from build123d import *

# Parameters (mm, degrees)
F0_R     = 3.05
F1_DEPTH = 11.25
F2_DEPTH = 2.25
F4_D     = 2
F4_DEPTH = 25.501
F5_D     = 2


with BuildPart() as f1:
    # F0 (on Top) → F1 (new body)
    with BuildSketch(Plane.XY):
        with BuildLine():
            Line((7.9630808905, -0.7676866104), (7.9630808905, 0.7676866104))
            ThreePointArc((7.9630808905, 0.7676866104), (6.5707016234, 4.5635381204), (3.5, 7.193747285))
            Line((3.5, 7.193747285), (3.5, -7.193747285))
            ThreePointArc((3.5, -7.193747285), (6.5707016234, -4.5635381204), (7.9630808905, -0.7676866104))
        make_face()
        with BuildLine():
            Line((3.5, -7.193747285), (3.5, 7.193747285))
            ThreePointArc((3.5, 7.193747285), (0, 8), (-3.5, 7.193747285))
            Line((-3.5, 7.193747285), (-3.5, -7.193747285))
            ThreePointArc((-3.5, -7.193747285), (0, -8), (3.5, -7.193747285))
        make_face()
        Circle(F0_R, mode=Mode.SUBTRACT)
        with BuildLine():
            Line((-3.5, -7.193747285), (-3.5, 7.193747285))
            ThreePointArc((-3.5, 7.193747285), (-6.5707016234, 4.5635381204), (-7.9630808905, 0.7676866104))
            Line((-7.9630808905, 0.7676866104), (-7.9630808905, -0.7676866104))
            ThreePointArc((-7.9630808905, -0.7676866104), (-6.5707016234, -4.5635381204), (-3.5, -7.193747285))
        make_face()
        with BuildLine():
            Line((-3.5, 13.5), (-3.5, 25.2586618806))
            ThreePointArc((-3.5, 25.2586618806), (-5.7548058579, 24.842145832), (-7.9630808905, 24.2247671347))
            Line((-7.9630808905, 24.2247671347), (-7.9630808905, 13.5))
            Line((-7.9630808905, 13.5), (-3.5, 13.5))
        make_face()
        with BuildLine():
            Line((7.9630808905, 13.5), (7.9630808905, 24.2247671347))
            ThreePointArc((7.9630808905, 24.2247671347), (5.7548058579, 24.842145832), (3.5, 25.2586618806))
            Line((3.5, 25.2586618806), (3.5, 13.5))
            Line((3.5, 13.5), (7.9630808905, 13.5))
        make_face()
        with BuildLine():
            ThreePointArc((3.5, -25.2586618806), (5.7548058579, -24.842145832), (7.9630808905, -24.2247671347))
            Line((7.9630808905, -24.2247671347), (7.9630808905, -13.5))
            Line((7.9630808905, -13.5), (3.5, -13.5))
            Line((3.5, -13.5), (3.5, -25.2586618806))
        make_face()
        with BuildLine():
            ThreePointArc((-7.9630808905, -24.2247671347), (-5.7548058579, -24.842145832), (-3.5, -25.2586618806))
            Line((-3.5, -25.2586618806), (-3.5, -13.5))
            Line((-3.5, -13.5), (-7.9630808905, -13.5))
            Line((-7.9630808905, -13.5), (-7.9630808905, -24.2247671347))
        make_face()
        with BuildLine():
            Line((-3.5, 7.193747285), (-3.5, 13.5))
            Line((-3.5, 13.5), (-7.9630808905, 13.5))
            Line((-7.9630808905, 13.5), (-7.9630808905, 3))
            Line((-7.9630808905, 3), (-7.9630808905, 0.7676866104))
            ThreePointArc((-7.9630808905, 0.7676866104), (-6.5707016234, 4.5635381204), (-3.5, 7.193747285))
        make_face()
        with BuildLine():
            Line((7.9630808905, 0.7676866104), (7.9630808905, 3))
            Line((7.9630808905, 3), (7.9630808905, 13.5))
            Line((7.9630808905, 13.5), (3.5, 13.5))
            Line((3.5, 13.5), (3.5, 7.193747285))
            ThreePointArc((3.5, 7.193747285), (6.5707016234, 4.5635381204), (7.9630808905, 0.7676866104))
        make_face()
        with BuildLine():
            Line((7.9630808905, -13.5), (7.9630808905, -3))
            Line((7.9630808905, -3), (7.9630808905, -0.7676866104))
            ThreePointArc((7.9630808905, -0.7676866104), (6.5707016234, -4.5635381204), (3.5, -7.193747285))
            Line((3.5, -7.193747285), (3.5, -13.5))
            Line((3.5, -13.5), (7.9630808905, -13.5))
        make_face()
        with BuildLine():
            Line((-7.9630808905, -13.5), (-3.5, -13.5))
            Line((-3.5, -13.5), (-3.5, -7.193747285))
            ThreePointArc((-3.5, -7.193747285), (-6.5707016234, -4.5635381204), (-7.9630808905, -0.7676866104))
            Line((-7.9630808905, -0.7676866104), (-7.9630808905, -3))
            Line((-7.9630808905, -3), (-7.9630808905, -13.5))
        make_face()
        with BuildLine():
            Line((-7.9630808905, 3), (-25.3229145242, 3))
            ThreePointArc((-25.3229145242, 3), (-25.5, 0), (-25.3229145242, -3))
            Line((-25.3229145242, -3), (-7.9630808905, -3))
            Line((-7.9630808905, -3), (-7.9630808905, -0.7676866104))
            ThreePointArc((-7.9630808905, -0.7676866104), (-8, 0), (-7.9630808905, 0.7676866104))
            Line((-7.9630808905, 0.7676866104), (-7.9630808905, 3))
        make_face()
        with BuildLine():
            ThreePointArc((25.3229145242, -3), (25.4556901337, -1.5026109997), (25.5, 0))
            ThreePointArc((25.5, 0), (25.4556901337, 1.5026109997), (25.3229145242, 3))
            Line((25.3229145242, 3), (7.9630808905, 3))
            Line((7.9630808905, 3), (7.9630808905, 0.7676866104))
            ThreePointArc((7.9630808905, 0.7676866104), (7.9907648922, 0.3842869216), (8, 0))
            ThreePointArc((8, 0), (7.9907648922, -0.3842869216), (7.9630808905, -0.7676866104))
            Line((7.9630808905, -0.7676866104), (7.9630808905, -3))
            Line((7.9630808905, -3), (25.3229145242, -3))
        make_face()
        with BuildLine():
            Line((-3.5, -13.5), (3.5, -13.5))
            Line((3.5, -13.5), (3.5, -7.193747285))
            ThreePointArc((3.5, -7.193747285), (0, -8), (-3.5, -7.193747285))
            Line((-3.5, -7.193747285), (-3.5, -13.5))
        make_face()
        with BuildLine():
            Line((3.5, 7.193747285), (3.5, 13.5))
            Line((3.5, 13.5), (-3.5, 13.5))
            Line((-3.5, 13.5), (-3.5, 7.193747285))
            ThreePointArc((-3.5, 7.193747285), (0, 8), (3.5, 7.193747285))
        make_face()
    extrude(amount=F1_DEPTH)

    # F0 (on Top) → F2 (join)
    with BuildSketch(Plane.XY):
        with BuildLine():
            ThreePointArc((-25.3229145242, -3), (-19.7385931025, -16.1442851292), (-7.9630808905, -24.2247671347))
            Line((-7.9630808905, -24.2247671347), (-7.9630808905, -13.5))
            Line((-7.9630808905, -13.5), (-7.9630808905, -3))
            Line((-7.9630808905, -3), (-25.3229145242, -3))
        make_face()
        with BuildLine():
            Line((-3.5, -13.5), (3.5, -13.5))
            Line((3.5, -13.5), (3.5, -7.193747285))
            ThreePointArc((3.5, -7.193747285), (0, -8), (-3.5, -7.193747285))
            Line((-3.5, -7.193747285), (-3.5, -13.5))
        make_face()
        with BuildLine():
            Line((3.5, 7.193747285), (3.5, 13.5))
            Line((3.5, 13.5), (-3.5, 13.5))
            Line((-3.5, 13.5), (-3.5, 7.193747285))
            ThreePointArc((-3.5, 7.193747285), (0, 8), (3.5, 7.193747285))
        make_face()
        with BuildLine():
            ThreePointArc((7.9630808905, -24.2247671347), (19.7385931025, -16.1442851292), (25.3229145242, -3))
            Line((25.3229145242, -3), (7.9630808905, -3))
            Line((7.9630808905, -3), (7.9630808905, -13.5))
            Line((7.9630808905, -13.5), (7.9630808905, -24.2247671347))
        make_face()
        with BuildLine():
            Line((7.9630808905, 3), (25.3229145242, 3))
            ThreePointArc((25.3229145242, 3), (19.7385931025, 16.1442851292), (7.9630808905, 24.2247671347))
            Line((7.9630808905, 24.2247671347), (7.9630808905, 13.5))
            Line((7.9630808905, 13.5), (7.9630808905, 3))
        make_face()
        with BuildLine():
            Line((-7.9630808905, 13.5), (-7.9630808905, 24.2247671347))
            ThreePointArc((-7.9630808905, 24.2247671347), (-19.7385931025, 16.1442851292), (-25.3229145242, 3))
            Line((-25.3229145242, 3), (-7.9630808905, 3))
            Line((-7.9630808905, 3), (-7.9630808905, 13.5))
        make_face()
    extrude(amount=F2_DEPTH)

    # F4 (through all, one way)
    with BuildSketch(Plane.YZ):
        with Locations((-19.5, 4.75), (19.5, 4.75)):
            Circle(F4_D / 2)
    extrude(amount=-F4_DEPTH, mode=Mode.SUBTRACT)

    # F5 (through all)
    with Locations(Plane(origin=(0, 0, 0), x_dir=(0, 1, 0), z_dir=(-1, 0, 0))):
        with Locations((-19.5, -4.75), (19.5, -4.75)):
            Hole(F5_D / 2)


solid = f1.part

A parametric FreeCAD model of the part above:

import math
import FreeCAD as App
import Part
import Sketcher
from FreeCAD import Vector

doc = App.newDocument("Part")
body = doc.addObject("PartDesign::Body", "Body")

# Sketch on XY plane
sketch1 = body.newObject("Sketcher::SketchObject", "Sketch")
sketch1.AttachmentSupport = (doc.getObject("XY_Plane"), [""])
sketch1.MapMode = "FlatFace"
sketch1.addGeometry(Part.ArcOfCircle(Part.Circle(Vector(0, 0, 0), Vector(0, 0, 1), 25.5), math.radians(71.8), math.radians(82.11)), False)
sketch1.addGeometry(Part.LineSegment(Vector(3.5, 25.3, 0), Vector(3.5, 13.5, 0)), False)
sketch1.addGeometry(Part.LineSegment(Vector(3.5, 13.5, 0), Vector(-3.5, 13.5, 0)), False)
sketch1.addGeometry(Part.LineSegment(Vector(-3.5, 13.5, 0), Vector(-3.5, 25.3, 0)), False)
sketch1.addGeometry(Part.ArcOfCircle(Part.Circle(Vector(0, 0, 0), Vector(0, 0, 1), 25.5), math.radians(97.89), math.radians(108.2)), False)
sketch1.addGeometry(Part.LineSegment(Vector(-8, 24.2, 0), Vector(-8, 3, 0)), False)
sketch1.addGeometry(Part.LineSegment(Vector(-8, 3, 0), Vector(-25.3, 3, 0)), False)
sketch1.addGeometry(Part.ArcOfCircle(Part.Circle(Vector(0, 0, 0), Vector(0, 0, 1), 25.5), math.radians(173.24), math.radians(186.76)), False)
sketch1.addGeometry(Part.LineSegment(Vector(-25.3, -3, 0), Vector(-8, -3, 0)), False)
sketch1.addGeometry(Part.LineSegment(Vector(-8, -3, 0), Vector(-8, -24.2, 0)), False)
sketch1.addGeometry(Part.ArcOfCircle(Part.Circle(Vector(0, 0, 0), Vector(0, 0, 1), 25.5), math.radians(-108.2), math.radians(-97.89)), False)
sketch1.addGeometry(Part.LineSegment(Vector(-3.5, -25.3, 0), Vector(-3.5, -13.5, 0)), False)
sketch1.addGeometry(Part.LineSegment(Vector(-3.5, -13.5, 0), Vector(3.5, -13.5, 0)), False)
sketch1.addGeometry(Part.LineSegment(Vector(3.5, -13.5, 0), Vector(3.5, -25.3, 0)), False)
sketch1.addGeometry(Part.ArcOfCircle(Part.Circle(Vector(0, 0, 0), Vector(0, 0, 1), 25.5), math.radians(-82.11), math.radians(-71.8)), False)
sketch1.addGeometry(Part.LineSegment(Vector(8, -24.2, 0), Vector(8, -3, 0)), False)
sketch1.addGeometry(Part.LineSegment(Vector(8, -3, 0), Vector(25.3, -3, 0)), False)
sketch1.addGeometry(Part.ArcOfCircle(Part.Circle(Vector(0, 0, 0), Vector(0, 0, 1), 25.5), math.radians(-6.76), math.radians(0)), False)
sketch1.addGeometry(Part.ArcOfCircle(Part.Circle(Vector(0, 0, 0), Vector(0, 0, 1), 25.5), math.radians(0), math.radians(6.76)), False)
sketch1.addGeometry(Part.LineSegment(Vector(25.3, 3, 0), Vector(8, 3, 0)), False)
sketch1.addGeometry(Part.LineSegment(Vector(8, 3, 0), Vector(8, 24.2, 0)), False)
sketch1.addGeometry(Part.LineSegment(Vector(8, -0.8, 0), Vector(8, 0.8, 0)), False)
sketch1.addGeometry(Part.ArcOfCircle(Part.Circle(Vector(0, 0, 0), Vector(0, 0, 1), 8), math.radians(0), math.radians(5.51)), False)
sketch1.addGeometry(Part.ArcOfCircle(Part.Circle(Vector(0, 0, 0), Vector(0, 0, 1), 8), math.radians(-5.51), math.radians(0)), False)
sketch1.addGeometry(Part.LineSegment(Vector(-8, 0.8, 0), Vector(-8, -0.8, 0)), False)
sketch1.addGeometry(Part.ArcOfCircle(Part.Circle(Vector(0, 0, 0), Vector(0, 0, 1), 8), math.radians(174.49), math.radians(185.51)), False)
sketch1.addGeometry(Part.Circle(Vector(0, 0, 0), Vector(0, 0, 1), 3), False)
sketch1.addConstraint(Sketcher.Constraint("Coincident", 0, 2, 1, 1))
sketch1.addConstraint(Sketcher.Constraint("Coincident", 1, 2, 2, 1))
sketch1.addConstraint(Sketcher.Constraint("Coincident", 2, 2, 3, 1))
sketch1.addConstraint(Sketcher.Constraint("Coincident", 3, 2, 4, 1))
sketch1.addConstraint(Sketcher.Constraint("Coincident", 4, 2, 5, 1))
sketch1.addConstraint(Sketcher.Constraint("Coincident", 5, 2, 6, 1))
sketch1.addConstraint(Sketcher.Constraint("Coincident", 6, 2, 7, 1))
sketch1.addConstraint(Sketcher.Constraint("Coincident", 7, 2, 8, 1))
sketch1.addConstraint(Sketcher.Constraint("Coincident", 8, 2, 9, 1))
sketch1.addConstraint(Sketcher.Constraint("Coincident", 9, 2, 10, 1))
sketch1.addConstraint(Sketcher.Constraint("Coincident", 10, 2, 11, 1))
sketch1.addConstraint(Sketcher.Constraint("Coincident", 11, 2, 12, 1))
sketch1.addConstraint(Sketcher.Constraint("Coincident", 12, 2, 13, 1))
sketch1.addConstraint(Sketcher.Constraint("Coincident", 13, 2, 14, 1))
sketch1.addConstraint(Sketcher.Constraint("Coincident", 14, 2, 15, 1))
sketch1.addConstraint(Sketcher.Constraint("Coincident", 15, 2, 16, 1))
sketch1.addConstraint(Sketcher.Constraint("Coincident", 16, 2, 17, 1))
sketch1.addConstraint(Sketcher.Constraint("Tangent", 17, 2, 18, 1))
sketch1.addConstraint(Sketcher.Constraint("Coincident", 18, 2, 19, 1))
sketch1.addConstraint(Sketcher.Constraint("Coincident", 19, 2, 20, 1))
sketch1.addConstraint(Sketcher.Constraint("Coincident", 20, 2, 0, 1))
sketch1.addConstraint(Sketcher.Constraint("Coincident", 21, 2, 22, 2))
sketch1.addConstraint(Sketcher.Constraint("Tangent", 22, 1, 23, 2))
sketch1.addConstraint(Sketcher.Constraint("Coincident", 23, 1, 21, 1))
sketch1.addConstraint(Sketcher.Constraint("Coincident", 24, 1, 25, 1))
sketch1.addConstraint(Sketcher.Constraint("Coincident", 25, 2, 24, 2))
sketch1.addConstraint(Sketcher.Constraint("Vertical", 1))
sketch1.addConstraint(Sketcher.Constraint("Horizontal", 2))
sketch1.addConstraint(Sketcher.Constraint("Vertical", 3))
sketch1.addConstraint(Sketcher.Constraint("Vertical", 5))
sketch1.addConstraint(Sketcher.Constraint("Horizontal", 6))
sketch1.addConstraint(Sketcher.Constraint("Horizontal", 8))
sketch1.addConstraint(Sketcher.Constraint("Vertical", 9))
sketch1.addConstraint(Sketcher.Constraint("Vertical", 11))
sketch1.addConstraint(Sketcher.Constraint("Horizontal", 12))
sketch1.addConstraint(Sketcher.Constraint("Vertical", 13))
sketch1.addConstraint(Sketcher.Constraint("Vertical", 15))
sketch1.addConstraint(Sketcher.Constraint("Horizontal", 16))
sketch1.addConstraint(Sketcher.Constraint("Horizontal", 19))
sketch1.addConstraint(Sketcher.Constraint("Vertical", 20))
sketch1.addConstraint(Sketcher.Constraint("Vertical", 21))
sketch1.addConstraint(Sketcher.Constraint("Vertical", 24))
sketch1.addConstraint(Sketcher.Constraint("Coincident", 0, 3, -1, 1))
sketch1.addConstraint(Sketcher.Constraint("Coincident", 4, 3, -1, 1))
sketch1.addConstraint(Sketcher.Constraint("Coincident", 7, 3, -1, 1))
sketch1.addConstraint(Sketcher.Constraint("Coincident", 10, 3, -1, 1))
sketch1.addConstraint(Sketcher.Constraint("Coincident", 14, 3, -1, 1))
sketch1.addConstraint(Sketcher.Constraint("Coincident", 17, 3, -1, 1))
sketch1.addConstraint(Sketcher.Constraint("Coincident", 22, 3, -1, 1))
sketch1.addConstraint(Sketcher.Constraint("Coincident", 25, 3, -1, 1))
sketch1.addConstraint(Sketcher.Constraint("Coincident", 26, 3, -1, 1))
sketch1.addConstraint(Sketcher.Constraint("Equal", 0, 4))
sketch1.addConstraint(Sketcher.Constraint("Equal", 4, 7))
sketch1.addConstraint(Sketcher.Constraint("Equal", 7, 10))
sketch1.addConstraint(Sketcher.Constraint("Equal", 10, 14))
sketch1.addConstraint(Sketcher.Constraint("Equal", 14, 17))
sketch1.addConstraint(Sketcher.Constraint("Equal", 17, 18))
sketch1.addConstraint(Sketcher.Constraint("Equal", 22, 23))
sketch1.addConstraint(Sketcher.Constraint("Equal", 23, 25))
sketch1.addConstraint(Sketcher.Constraint("Symmetric", 1, 2, 11, 2, -1, 1))
sketch1.addConstraint(Sketcher.Constraint("Symmetric", 5, 2, 15, 2, -1, 1))
sketch1.addConstraint(Sketcher.Constraint("Symmetric", 8, 2, 19, 2, -1, 1))
sketch1.addConstraint(Sketcher.Constraint("Symmetric", 8, 2, 15, 2, -2))
sketch1.addConstraint(Sketcher.Constraint("PointOnObject", 17, 2, -1))
sketch1.addConstraint(Sketcher.Constraint("PointOnObject", 22, 1, -1))
sketch1.addConstraint(Sketcher.Constraint("Horizontal", 0, 2, 3, 2))
sketch1.addConstraint(Sketcher.Constraint("Horizontal", 10, 2, 13, 2))
sketch1.addConstraint(Sketcher.Constraint("Horizontal", 21, 2, 24, 1))
sketch1.addConstraint(Sketcher.Constraint("Vertical", 20, 2, 21, 2))
sketch1.addConstraint(Sketcher.Constraint("Radius", 22, 8.0))
sketch1.addConstraint(Sketcher.Constraint("Diameter", 26, 6.1))
sketch1.addConstraint(Sketcher.Constraint("Radius", 0, 25.5))
sketch1.addConstraint(Sketcher.Constraint("DistanceX", 2, 2, 2, 1, 7.0))
sketch1.addConstraint(Sketcher.Constraint("DistanceY", -1, 1, 5, 2, 3.0))
sketch1.addConstraint(Sketcher.Constraint("DistanceY", -1, 1, 1, 2, 13.5))
sketch1.addConstraint(Sketcher.Constraint("DistanceX", 6, 2, 6, 1, 17.359834))
pad1 = body.newObject("PartDesign::Pad", "Pad")
pad1.Profile = sketch1
pad1.Length = 11.25

# Sketch on XY plane
sketch2 = body.newObject("Sketcher::SketchObject", "Sketch001")
sketch2.AttachmentSupport = (doc.getObject("XY_Plane"), [""])
sketch2.MapMode = "FlatFace"
sketch2.addGeometry(Part.ArcOfCircle(Part.Circle(Vector(0, 0, 0), Vector(0, 0, 1), 26), math.radians(-173), math.radians(-108)), False)
sketch2.addGeometry(Part.LineSegment(Vector(-8, -24, 0), Vector(-8, -3, 0)), False)
sketch2.addGeometry(Part.LineSegment(Vector(-8, -3, 0), Vector(-25, -3, 0)), False)
sketch2.addGeometry(Part.LineSegment(Vector(-4, -14, 0), Vector(4, -14, 0)), False)
sketch2.addGeometry(Part.LineSegment(Vector(4, -14, 0), Vector(4, -7, 0)), False)
sketch2.addGeometry(Part.ArcOfCircle(Part.Circle(Vector(0, 0, 0), Vector(0, 0, 1), 8), math.radians(-116), math.radians(-64)), False)
sketch2.addGeometry(Part.LineSegment(Vector(-4, -7, 0), Vector(-4, -14, 0)), False)
sketch2.addGeometry(Part.LineSegment(Vector(4, 7, 0), Vector(4, 14, 0)), False)
sketch2.addGeometry(Part.LineSegment(Vector(4, 14, 0), Vector(-4, 14, 0)), False)
sketch2.addGeometry(Part.LineSegment(Vector(-4, 14, 0), Vector(-4, 7, 0)), False)
sketch2.addGeometry(Part.ArcOfCircle(Part.Circle(Vector(0, 0, 0), Vector(0, 0, 1), 8), math.radians(64), math.radians(116)), False)
sketch2.addGeometry(Part.ArcOfCircle(Part.Circle(Vector(0, 0, 0), Vector(0, 0, 1), 26), math.radians(-72), math.radians(-7)), False)
sketch2.addGeometry(Part.LineSegment(Vector(25, -3, 0), Vector(8, -3, 0)), False)
sketch2.addGeometry(Part.LineSegment(Vector(8, -3, 0), Vector(8, -24, 0)), False)
sketch2.addGeometry(Part.LineSegment(Vector(8, 3, 0), Vector(25, 3, 0)), False)
sketch2.addGeometry(Part.ArcOfCircle(Part.Circle(Vector(0, 0, 0), Vector(0, 0, 1), 26), math.radians(7), math.radians(72)), False)
sketch2.addGeometry(Part.LineSegment(Vector(8, 24, 0), Vector(8, 3, 0)), False)
sketch2.addGeometry(Part.ArcOfCircle(Part.Circle(Vector(0, 0, 0), Vector(0, 0, 1), 26), math.radians(108), math.radians(173)), False)
sketch2.addGeometry(Part.LineSegment(Vector(-25, 3, 0), Vector(-8, 3, 0)), False)
sketch2.addGeometry(Part.LineSegment(Vector(-8, 3, 0), Vector(-8, 24, 0)), False)
sketch2.addConstraint(Sketcher.Constraint("Coincident", 0, 2, 1, 1))
sketch2.addConstraint(Sketcher.Constraint("Coincident", 1, 2, 2, 1))
sketch2.addConstraint(Sketcher.Constraint("Coincident", 2, 2, 0, 1))
sketch2.addConstraint(Sketcher.Constraint("Coincident", 3, 2, 4, 1))
sketch2.addConstraint(Sketcher.Constraint("Coincident", 4, 2, 5, 2))
sketch2.addConstraint(Sketcher.Constraint("Coincident", 5, 1, 6, 1))
sketch2.addConstraint(Sketcher.Constraint("Coincident", 6, 2, 3, 1))
sketch2.addConstraint(Sketcher.Constraint("Coincident", 7, 2, 8, 1))
sketch2.addConstraint(Sketcher.Constraint("Coincident", 8, 2, 9, 1))
sketch2.addConstraint(Sketcher.Constraint("Coincident", 9, 2, 10, 2))
sketch2.addConstraint(Sketcher.Constraint("Coincident", 10, 1, 7, 1))
sketch2.addConstraint(Sketcher.Constraint("Coincident", 11, 2, 12, 1))
sketch2.addConstraint(Sketcher.Constraint("Coincident", 12, 2, 13, 1))
sketch2.addConstraint(Sketcher.Constraint("Coincident", 13, 2, 11, 1))
sketch2.addConstraint(Sketcher.Constraint("Coincident", 14, 2, 15, 1))
sketch2.addConstraint(Sketcher.Constraint("Coincident", 15, 2, 16, 1))
sketch2.addConstraint(Sketcher.Constraint("Coincident", 16, 2, 14, 1))
sketch2.addConstraint(Sketcher.Constraint("Coincident", 17, 2, 18, 1))
sketch2.addConstraint(Sketcher.Constraint("Coincident", 18, 2, 19, 1))
sketch2.addConstraint(Sketcher.Constraint("Coincident", 19, 2, 17, 1))
sketch2.addConstraint(Sketcher.Constraint("Vertical", 1))
sketch2.addConstraint(Sketcher.Constraint("Horizontal", 2))
sketch2.addConstraint(Sketcher.Constraint("Horizontal", 3))
sketch2.addConstraint(Sketcher.Constraint("Vertical", 4))
sketch2.addConstraint(Sketcher.Constraint("Vertical", 6))
sketch2.addConstraint(Sketcher.Constraint("Vertical", 7))
sketch2.addConstraint(Sketcher.Constraint("Horizontal", 8))
sketch2.addConstraint(Sketcher.Constraint("Vertical", 9))
sketch2.addConstraint(Sketcher.Constraint("Horizontal", 12))
sketch2.addConstraint(Sketcher.Constraint("Vertical", 13))
sketch2.addConstraint(Sketcher.Constraint("Horizontal", 14))
sketch2.addConstraint(Sketcher.Constraint("Vertical", 16))
sketch2.addConstraint(Sketcher.Constraint("Horizontal", 18))
sketch2.addConstraint(Sketcher.Constraint("Vertical", 19))
sketch2.addConstraint(Sketcher.Constraint("Coincident", 0, 3, -1, 1))
sketch2.addConstraint(Sketcher.Constraint("Coincident", 5, 3, -1, 1))
sketch2.addConstraint(Sketcher.Constraint("Coincident", 10, 3, -1, 1))
sketch2.addConstraint(Sketcher.Constraint("Coincident", 11, 3, -1, 1))
sketch2.addConstraint(Sketcher.Constraint("Coincident", 15, 3, -1, 1))
sketch2.addConstraint(Sketcher.Constraint("Coincident", 17, 3, -1, 1))
sketch2.addConstraint(Sketcher.Constraint("Equal", 5, 10))
sketch2.addConstraint(Sketcher.Constraint("Equal", 0, 11))
sketch2.addConstraint(Sketcher.Constraint("Equal", 11, 15))
sketch2.addConstraint(Sketcher.Constraint("Equal", 15, 17))
sketch2.addConstraint(Sketcher.Constraint("Symmetric", 6, 2, 7, 2, -1, 1))
sketch2.addConstraint(Sketcher.Constraint("Symmetric", 1, 2, 16, 2, -1, 1))
sketch2.addConstraint(Sketcher.Constraint("Symmetric", 12, 2, 18, 2, -1, 1))
sketch2.addConstraint(Sketcher.Constraint("Symmetric", 1, 2, 12, 2, -2))
sketch2.addConstraint(Sketcher.Constraint("Horizontal", 4, 2, 5, 1))
sketch2.addConstraint(Sketcher.Constraint("Horizontal", 9, 2, 10, 1))
sketch2.addConstraint(Sketcher.Constraint("Radius", 5, 8.0))
sketch2.addConstraint(Sketcher.Constraint("Radius", 0, 25.5))
sketch2.addConstraint(Sketcher.Constraint("DistanceX", 3, 1, 3, 2, 7.0))
sketch2.addConstraint(Sketcher.Constraint("DistanceY", 1, 2, -1, 1, 3.0))
sketch2.addConstraint(Sketcher.Constraint("DistanceY", 3, 2, -1, 1, 13.5))
sketch2.addConstraint(Sketcher.Constraint("DistanceX", 2, 2, 2, 1, 17.359834))
pad2 = body.newObject("PartDesign::Pad", "Pad001")
pad2.Profile = sketch2
pad2.Length = 2.25

# Sketch on YZ plane
sketch3 = body.newObject("Sketcher::SketchObject", "Sketch002")
sketch3.AttachmentSupport = (doc.getObject("YZ_Plane"), [""])
sketch3.MapMode = "FlatFace"
sketch3.addGeometry(Part.Circle(Vector(19.5, 4.8, 0), Vector(0, 0, 1), 1), False)
sketch3.addGeometry(Part.Circle(Vector(-19.5, 4.8, 0), Vector(0, 0, 1), 1), False)
sketch3.addConstraint(Sketcher.Constraint("Equal", 0, 1))
sketch3.addConstraint(Sketcher.Constraint("Symmetric", 0, 3, 1, 3, -2))
sketch3.addConstraint(Sketcher.Constraint("Diameter", 0, 2.0))
sketch3.addConstraint(Sketcher.Constraint("DistanceX", 1, 3, 0, 3, 39.0))
sketch3.addConstraint(Sketcher.Constraint("DistanceY", -1, 1, 0, 3, 4.75))
pocket1 = body.newObject("PartDesign::Pocket", "Pocket")
pocket1.Profile = sketch3
pocket1.Type = "ThroughAll"

# Sketch on YZ plane
sketch4 = body.newObject("Sketcher::SketchObject", "Sketch003")
sketch4.AttachmentSupport = (doc.getObject("YZ_Plane"), [""])
sketch4.MapMode = "FlatFace"
sketch4.addGeometry(Part.Circle(Vector(-19.5, 4.8, 0), Vector(0, 0, 1), 1), False)
sketch4.addGeometry(Part.Circle(Vector(19.5, 4.8, 0), Vector(0, 0, 1), 1), False)
sketch4.addConstraint(Sketcher.Constraint("Equal", 0, 1))
sketch4.addConstraint(Sketcher.Constraint("Symmetric", 0, 3, 1, 3, -2))
sketch4.addConstraint(Sketcher.Constraint("Diameter", 0, 2.0))
sketch4.addConstraint(Sketcher.Constraint("DistanceX", 0, 3, 1, 3, 39.0))
sketch4.addConstraint(Sketcher.Constraint("DistanceY", -1, 1, 0, 3, 4.75))
doc.recompute()
hole = body.newObject("PartDesign::Hole", "Hole")
hole.Profile = sketch4
hole.ThreadType = "None"
hole.Diameter = 2
hole.DepthType = "ThroughAll"
hole.Reversed = True

doc.recompute()
